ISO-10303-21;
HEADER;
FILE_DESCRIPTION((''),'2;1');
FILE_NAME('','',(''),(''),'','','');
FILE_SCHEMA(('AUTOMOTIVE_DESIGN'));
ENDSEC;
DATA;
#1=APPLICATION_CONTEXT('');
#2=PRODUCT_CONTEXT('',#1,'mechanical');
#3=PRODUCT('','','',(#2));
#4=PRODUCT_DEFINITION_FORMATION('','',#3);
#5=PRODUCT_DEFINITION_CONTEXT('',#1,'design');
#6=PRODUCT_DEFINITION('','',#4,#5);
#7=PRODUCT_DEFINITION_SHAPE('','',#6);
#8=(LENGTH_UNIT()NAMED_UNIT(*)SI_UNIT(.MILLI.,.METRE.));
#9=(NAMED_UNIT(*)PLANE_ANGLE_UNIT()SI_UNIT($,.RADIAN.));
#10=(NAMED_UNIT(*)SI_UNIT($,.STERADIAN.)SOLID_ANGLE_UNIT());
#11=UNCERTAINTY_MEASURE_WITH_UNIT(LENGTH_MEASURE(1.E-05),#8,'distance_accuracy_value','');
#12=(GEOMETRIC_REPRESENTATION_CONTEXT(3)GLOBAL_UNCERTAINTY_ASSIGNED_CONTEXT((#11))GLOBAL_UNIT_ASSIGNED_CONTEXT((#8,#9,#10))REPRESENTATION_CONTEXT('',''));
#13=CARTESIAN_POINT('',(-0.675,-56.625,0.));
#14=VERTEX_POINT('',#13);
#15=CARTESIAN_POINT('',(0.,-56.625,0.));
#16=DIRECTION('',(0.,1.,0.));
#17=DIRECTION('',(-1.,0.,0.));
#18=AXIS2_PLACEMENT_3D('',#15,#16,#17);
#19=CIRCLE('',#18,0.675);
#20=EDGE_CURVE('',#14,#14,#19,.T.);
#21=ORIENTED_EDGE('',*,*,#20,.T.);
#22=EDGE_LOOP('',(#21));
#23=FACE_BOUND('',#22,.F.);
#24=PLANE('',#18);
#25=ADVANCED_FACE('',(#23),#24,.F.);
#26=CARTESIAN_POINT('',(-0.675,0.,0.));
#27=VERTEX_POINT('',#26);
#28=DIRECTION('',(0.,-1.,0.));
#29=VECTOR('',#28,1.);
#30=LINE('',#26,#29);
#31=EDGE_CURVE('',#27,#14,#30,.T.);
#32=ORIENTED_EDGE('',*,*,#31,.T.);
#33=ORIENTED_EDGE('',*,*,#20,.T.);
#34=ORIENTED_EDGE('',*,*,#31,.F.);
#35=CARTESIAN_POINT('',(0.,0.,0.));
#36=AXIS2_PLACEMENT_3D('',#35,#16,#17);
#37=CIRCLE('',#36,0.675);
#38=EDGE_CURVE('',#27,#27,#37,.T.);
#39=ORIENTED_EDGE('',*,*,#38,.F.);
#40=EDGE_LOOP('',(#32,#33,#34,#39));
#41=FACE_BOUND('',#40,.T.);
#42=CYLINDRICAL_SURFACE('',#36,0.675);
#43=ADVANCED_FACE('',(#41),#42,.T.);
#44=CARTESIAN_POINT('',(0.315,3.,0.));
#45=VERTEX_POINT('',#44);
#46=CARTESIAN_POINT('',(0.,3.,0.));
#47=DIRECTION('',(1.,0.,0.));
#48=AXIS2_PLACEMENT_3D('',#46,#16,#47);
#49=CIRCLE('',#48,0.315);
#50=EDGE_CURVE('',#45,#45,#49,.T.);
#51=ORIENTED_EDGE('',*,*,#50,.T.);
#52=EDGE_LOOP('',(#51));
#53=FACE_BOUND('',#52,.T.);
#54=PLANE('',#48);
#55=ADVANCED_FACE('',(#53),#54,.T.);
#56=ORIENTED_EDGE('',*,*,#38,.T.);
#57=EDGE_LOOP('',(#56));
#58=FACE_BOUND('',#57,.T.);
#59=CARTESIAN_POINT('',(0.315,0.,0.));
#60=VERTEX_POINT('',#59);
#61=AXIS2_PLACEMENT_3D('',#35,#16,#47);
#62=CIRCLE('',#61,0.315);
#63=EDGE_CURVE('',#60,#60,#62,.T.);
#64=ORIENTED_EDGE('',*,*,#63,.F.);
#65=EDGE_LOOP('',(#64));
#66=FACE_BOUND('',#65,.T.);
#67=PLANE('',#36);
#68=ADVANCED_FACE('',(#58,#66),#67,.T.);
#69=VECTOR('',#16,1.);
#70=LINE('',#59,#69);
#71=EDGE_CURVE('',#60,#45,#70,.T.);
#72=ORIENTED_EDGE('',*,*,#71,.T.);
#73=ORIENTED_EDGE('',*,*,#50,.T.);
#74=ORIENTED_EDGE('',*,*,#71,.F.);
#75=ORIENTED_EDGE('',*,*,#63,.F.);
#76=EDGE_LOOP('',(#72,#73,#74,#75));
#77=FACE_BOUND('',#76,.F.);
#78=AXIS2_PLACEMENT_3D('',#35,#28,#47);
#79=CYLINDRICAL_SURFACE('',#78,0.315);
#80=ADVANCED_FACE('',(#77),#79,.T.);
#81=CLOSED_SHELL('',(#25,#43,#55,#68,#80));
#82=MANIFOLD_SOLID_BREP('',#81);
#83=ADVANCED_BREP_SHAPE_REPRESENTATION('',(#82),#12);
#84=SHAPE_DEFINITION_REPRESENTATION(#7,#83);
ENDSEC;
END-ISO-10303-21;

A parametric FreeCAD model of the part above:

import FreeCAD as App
import Part
import Sketcher

V = App.Vector
Q = App.Units.Quantity

doc = App.newDocument("Part")
body = doc.addObject("PartDesign::Body", "Body")

# Sketch on XZ plane
sketch1 = doc.addObject("Sketcher::SketchObject", "Sketch")
body.addObject(sketch1)
sketch1.AttachmentSupport = (doc.XZ_Plane, [""])
sketch1.MapMode = "FlatFace"
sketch1.addGeometry(Part.Circle(V(0, 0, 0), V(0, 0, 1), 0.675), False)
sketch1.addConstraint([
    Sketcher.Constraint("Coincident", 0, 3, -1, 1),
    Sketcher.Constraint("Diameter", 0, Q("1.35 mm")),
])
pad1 = doc.addObject("PartDesign::Pad", "Pad")
body.addObject(pad1)
pad1.Profile = sketch1
pad1.Length = 56.625

# Sketch on XZ plane
sketch2 = doc.addObject("Sketcher::SketchObject", "Sketch001")
body.addObject(sketch2)
sketch2.AttachmentSupport = (doc.XZ_Plane, [""])
sketch2.MapMode = "FlatFace"
sketch2.addGeometry(Part.Circle(V(0, 0, 0), V(0, 0, 1), 0.315), False)
sketch2.addConstraint([
    Sketcher.Constraint("Coincident", 0, 3, -1, 1),
    Sketcher.Constraint("Diameter", 0, Q("0.63 mm")),
])
pad2 = doc.addObject("PartDesign::Pad", "Pad001")
body.addObject(pad2)
pad2.Profile = sketch2
pad2.Length = 3
pad2.Reversed = True

doc.recompute()
